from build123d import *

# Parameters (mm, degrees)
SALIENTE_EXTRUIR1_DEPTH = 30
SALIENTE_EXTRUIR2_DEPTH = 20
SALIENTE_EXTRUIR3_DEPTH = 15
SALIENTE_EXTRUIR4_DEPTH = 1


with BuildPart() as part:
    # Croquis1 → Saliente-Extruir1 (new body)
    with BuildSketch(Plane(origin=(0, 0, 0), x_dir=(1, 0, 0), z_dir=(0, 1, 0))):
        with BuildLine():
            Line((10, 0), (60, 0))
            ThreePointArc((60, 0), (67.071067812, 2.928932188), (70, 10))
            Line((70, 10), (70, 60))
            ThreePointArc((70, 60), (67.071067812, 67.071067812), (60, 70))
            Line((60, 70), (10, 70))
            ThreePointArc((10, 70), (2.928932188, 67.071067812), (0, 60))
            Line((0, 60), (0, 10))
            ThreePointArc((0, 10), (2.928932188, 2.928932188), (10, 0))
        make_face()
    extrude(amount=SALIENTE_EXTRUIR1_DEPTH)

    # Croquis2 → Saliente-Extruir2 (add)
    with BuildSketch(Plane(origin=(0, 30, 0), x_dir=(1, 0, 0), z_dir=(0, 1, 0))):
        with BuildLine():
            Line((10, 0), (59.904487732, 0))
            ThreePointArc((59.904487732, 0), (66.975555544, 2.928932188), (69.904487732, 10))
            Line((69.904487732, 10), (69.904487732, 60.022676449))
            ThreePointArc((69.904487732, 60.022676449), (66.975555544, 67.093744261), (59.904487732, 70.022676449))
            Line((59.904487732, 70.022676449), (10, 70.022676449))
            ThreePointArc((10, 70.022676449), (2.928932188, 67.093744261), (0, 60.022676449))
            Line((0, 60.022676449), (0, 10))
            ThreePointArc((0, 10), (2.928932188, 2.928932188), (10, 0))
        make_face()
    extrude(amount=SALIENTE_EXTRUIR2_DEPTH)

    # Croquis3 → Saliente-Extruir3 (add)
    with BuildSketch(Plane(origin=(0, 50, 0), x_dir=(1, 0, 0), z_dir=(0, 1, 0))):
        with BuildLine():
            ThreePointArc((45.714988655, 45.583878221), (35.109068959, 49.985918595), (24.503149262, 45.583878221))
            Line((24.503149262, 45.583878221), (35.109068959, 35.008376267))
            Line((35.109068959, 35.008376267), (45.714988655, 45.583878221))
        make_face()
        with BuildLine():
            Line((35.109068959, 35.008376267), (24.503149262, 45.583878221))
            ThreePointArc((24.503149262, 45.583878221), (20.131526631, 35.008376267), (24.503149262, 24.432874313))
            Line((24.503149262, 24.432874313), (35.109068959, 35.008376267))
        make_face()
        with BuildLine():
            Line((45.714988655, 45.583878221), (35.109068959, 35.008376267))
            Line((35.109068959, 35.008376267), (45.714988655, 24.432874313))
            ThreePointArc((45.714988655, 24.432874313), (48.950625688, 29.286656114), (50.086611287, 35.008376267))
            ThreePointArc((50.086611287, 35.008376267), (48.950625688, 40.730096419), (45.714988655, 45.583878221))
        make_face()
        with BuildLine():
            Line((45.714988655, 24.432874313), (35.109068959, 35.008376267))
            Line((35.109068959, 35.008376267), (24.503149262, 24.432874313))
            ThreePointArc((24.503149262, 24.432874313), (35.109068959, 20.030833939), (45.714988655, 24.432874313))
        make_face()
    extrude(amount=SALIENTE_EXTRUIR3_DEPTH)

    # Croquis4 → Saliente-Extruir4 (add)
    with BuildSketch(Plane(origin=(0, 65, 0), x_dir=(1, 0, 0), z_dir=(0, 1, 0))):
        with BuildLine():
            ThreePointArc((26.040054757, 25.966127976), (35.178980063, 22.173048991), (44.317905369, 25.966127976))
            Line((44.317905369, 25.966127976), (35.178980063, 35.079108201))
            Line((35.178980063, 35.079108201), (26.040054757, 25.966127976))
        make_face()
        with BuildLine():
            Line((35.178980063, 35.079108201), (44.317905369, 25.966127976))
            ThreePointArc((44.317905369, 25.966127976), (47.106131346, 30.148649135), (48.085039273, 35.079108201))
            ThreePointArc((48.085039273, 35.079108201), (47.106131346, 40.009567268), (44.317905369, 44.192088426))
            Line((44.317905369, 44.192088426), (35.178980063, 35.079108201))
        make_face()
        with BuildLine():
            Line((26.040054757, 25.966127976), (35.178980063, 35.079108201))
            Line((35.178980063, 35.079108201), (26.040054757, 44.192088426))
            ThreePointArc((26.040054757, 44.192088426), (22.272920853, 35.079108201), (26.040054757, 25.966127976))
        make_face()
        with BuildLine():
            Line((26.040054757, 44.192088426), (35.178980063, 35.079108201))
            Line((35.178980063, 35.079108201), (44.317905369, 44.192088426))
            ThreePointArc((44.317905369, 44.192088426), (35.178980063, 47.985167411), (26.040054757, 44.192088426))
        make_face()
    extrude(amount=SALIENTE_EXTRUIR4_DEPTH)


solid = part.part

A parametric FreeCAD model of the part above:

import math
import FreeCAD as App
import Part
import Sketcher
Q = App.Units.Quantity

doc = App.newDocument("Part")
params = doc.addObject("Spreadsheet::Sheet", "Params")
for row, (alias, value) in enumerate([
    ("sketch1_radius", "10 mm"),
    ("sketch1_width", "50 mm"),
    ("pad1_length", "30 mm"),
    ("sketch2_radius", "10 mm"),
    ("pad2_length", "20 mm"),
    ("pad3_length", "15 mm"),
    ("pad4_length", "1 mm"),
], start=1):
    params.set(f"A{row}", alias)
    params.set(f"B{row}", "=" + value)
    params.setAlias(f"B{row}", alias)

body = doc.addObject("PartDesign::Body", "Body")

# Sketch on XZ plane
sketch1 = body.newObject("Sketcher::SketchObject", "Sketch")
sketch1.AttachmentSupport = (doc.getObject("XZ_Plane"), [""])
sketch1.MapMode = "FlatFace"
sketch1.addGeometry([
    Part.LineSegment(App.Vector(10, 0, 0), App.Vector(60, 0, 0)),  # 0
    Part.ArcOfCircle(Part.Circle(App.Vector(60, -10, 0), App.Vector(0, 0, 1), 10), math.radians(0), math.radians(90)),  # 1
    Part.LineSegment(App.Vector(70, -10, 0), App.Vector(70, -60, 0)),  # 2
    Part.ArcOfCircle(Part.Circle(App.Vector(60, -60, 0), App.Vector(0, 0, 1), 10), math.radians(-90), math.radians(0)),  # 3
    Part.LineSegment(App.Vector(60, -70, 0), App.Vector(10, -70, 0)),  # 4
    Part.ArcOfCircle(Part.Circle(App.Vector(10, -60, 0), App.Vector(0, 0, 1), 10), math.radians(180), math.radians(270)),  # 5
    Part.LineSegment(App.Vector(0, -60, 0), App.Vector(0, -10, 0)),  # 6
    Part.ArcOfCircle(Part.Circle(App.Vector(10, -10, 0), App.Vector(0, 0, 1), 10), math.radians(90), math.radians(180)),  # 7
], False)
sketch1.addConstraint([
    Sketcher.Constraint("Tangent", 0, 2, 1, 2),
    Sketcher.Constraint("Tangent", 1, 1, 2, 1),
    Sketcher.Constraint("Tangent", 2, 2, 3, 2),
    Sketcher.Constraint("Tangent", 3, 1, 4, 1),
    Sketcher.Constraint("Tangent", 4, 2, 5, 2),
    Sketcher.Constraint("Tangent", 5, 1, 6, 1),
    Sketcher.Constraint("Tangent", 6, 2, 7, 2),
    Sketcher.Constraint("Tangent", 7, 1, 0, 1),
    Sketcher.Constraint("Horizontal", 0),
    Sketcher.Constraint("Vertical", 2),
    Sketcher.Constraint("Horizontal", 4),
    Sketcher.Constraint("Vertical", 6),
    Sketcher.Constraint("Equal", 1, 3),
    Sketcher.Constraint("Equal", 3, 5),
    Sketcher.Constraint("Equal", 5, 7),
    Sketcher.Constraint("PointOnObject", 0, 2, -1),
    Sketcher.Constraint("PointOnObject", 5, 1, -2),
    Sketcher.Constraint("Equal", 4, 2),
    Sketcher.Constraint("Radius", 1, Q("10 mm")),
    Sketcher.Constraint("DistanceX", 0, 1, 0, 2, Q("50 mm")),
])
sketch1.setExpression("Constraints[18]", "Params.sketch1_radius")
sketch1.setExpression("Constraints[19]", "Params.sketch1_width")
pad1 = body.newObject("PartDesign::Pad", "Pad")
pad1.Profile = sketch1
pad1.setExpression("Length", "Params.pad1_length")
pad1.Reversed = True

# Sketch on XZ plane
sketch2 = body.newObject("Sketcher::SketchObject", "Sketch001")
sketch2.AttachmentSupport = (doc.getObject("XZ_Plane"), [""])
sketch2.MapMode = "FlatFace"
sketch2.AttachmentOffset = App.Placement(App.Vector(0, 0, -30), App.Rotation())
sketch2.addGeometry([
    Part.LineSegment(App.Vector(10, 0, 0), App.Vector(60, 0, 0)),  # 0
    Part.ArcOfCircle(Part.Circle(App.Vector(60, -10, 0), App.Vector(0, 0, 1), 10), math.radians(0), math.radians(90)),  # 1
    Part.LineSegment(App.Vector(70, -10, 0), App.Vector(70, -60, 0)),  # 2
    Part.ArcOfCircle(Part.Circle(App.Vector(60, -60, 0), App.Vector(0, 0, 1), 10), math.radians(-90), math.radians(0)),  # 3
    Part.LineSegment(App.Vector(60, -70, 0), App.Vector(10, -70, 0)),  # 4
    Part.ArcOfCircle(Part.Circle(App.Vector(10, -60, 0), App.Vector(0, 0, 1), 10), math.radians(180), math.radians(270)),  # 5
    Part.LineSegment(App.Vector(0, -60, 0), App.Vector(0, -10, 0)),  # 6
    Part.ArcOfCircle(Part.Circle(App.Vector(10, -10, 0), App.Vector(0, 0, 1), 10), math.radians(90), math.radians(180)),  # 7
], False)
sketch2.addConstraint([
    Sketcher.Constraint("Tangent", 0, 2, 1, 2),
    Sketcher.Constraint("Tangent", 1, 1, 2, 1),
    Sketcher.Constraint("Tangent", 2, 2, 3, 2),
    Sketcher.Constraint("Tangent", 3, 1, 4, 1),
    Sketcher.Constraint("Tangent", 4, 2, 5, 2),
    Sketcher.Constraint("Tangent", 5, 1, 6, 1),
    Sketcher.Constraint("Tangent", 6, 2, 7, 2),
    Sketcher.Constraint("Tangent", 7, 1, 0, 1),
    Sketcher.Constraint("Horizontal", 0),
    Sketcher.Constraint("Vertical", 2),
    Sketcher.Constraint("Horizontal", 4),
    Sketcher.Constraint("Vertical", 6),
    Sketcher.Constraint("Equal", 1, 3),
    Sketcher.Constraint("Equal", 3, 5),
    Sketcher.Constraint("Equal", 5, 7),
    Sketcher.Constraint("PointOnObject", 0, 2, -1),
    Sketcher.Constraint("PointOnObject", 5, 1, -2),
    Sketcher.Constraint("Radius", 1, Q("10 mm")),
    Sketcher.Constraint("DistanceX", 0, 1, 0, 2, Q("49.904488 mm")),
    Sketcher.Constraint("DistanceY", 2, 2, 2, 1, Q("50.022676 mm")),
])
sketch2.setExpression("Constraints[17]", "Params.sketch2_radius")
pad2 = body.newObject("PartDesign::Pad", "Pad001")
pad2.Profile = sketch2
pad2.setExpression("Length", "Params.pad2_length")
pad2.Reversed = True

# Sketch on XZ plane
sketch3 = body.newObject("Sketcher::SketchObject", "Sketch002")
sketch3.AttachmentSupport = (doc.getObject("XZ_Plane"), [""])
sketch3.MapMode = "FlatFace"
sketch3.AttachmentOffset = App.Placement(App.Vector(0, 0, -50), App.Rotation())
sketch3.addGeometry([
    Part.ArcOfCircle(Part.Circle(App.Vector(35, -35, 0), App.Vector(0, 0, 1), 15), math.radians(45), math.radians(135)),  # 0
    Part.ArcOfCircle(Part.Circle(App.Vector(35, -35, 0), App.Vector(0, 0, 1), 15), math.radians(0), math.radians(45)),  # 1
    Part.ArcOfCircle(Part.Circle(App.Vector(35, -35, 0), App.Vector(0, 0, 1), 15), math.radians(-45), math.radians(0)),  # 2
    Part.ArcOfCircle(Part.Circle(App.Vector(35, -35, 0), App.Vector(0, 0, 1), 15), math.radians(-135), math.radians(-45)),  # 3
    Part.ArcOfCircle(Part.Circle(App.Vector(35, -35, 0), App.Vector(0, 0, 1), 15), math.radians(135), math.radians(225)),  # 4
], False)
sketch3.addConstraint([
    Sketcher.Constraint("Tangent", 0, 1, 1, 2),
    Sketcher.Constraint("Tangent", 1, 1, 2, 2),
    Sketcher.Constraint("Tangent", 2, 1, 3, 2),
    Sketcher.Constraint("Tangent", 3, 1, 4, 2),
    Sketcher.Constraint("Tangent", 4, 1, 0, 2),
    Sketcher.Constraint("Coincident", 2, 3, 0, 3),
    Sketcher.Constraint("Horizontal", 4, 3, 1, 1),
    Sketcher.Constraint("Horizontal", 2, 1, 3, 1),
    Sketcher.Constraint("Horizontal", 0, 1, 4, 1),
    Sketcher.Constraint("Vertical", 0, 1, 2, 1),
    Sketcher.Constraint("Radius", 0, Q("14.977542 mm")),
    Sketcher.Constraint("DistanceY", 1, 3, 0, 1, Q("10.575502 mm")),
    Sketcher.Constraint("DistanceX", -1, 1, 0, 3, Q("35.109069 mm")),
    Sketcher.Constraint("DistanceY", 2, 1, -1, 1, Q("45.583878 mm")),
])
pad3 = body.newObject("PartDesign::Pad", "Pad002")
pad3.Profile = sketch3
pad3.setExpression("Length", "Params.pad3_length")
pad3.Reversed = True

# Sketch on XZ plane
sketch4 = body.newObject("Sketcher::SketchObject", "Sketch003")
sketch4.AttachmentSupport = (doc.getObject("XZ_Plane"), [""])
sketch4.MapMode = "FlatFace"
sketch4.AttachmentOffset = App.Placement(App.Vector(0, 0, -65), App.Rotation())
sketch4.addGeometry([
    Part.ArcOfCircle(Part.Circle(App.Vector(35, -35, 0), App.Vector(0, 0, 1), 13), math.radians(-45), math.radians(0)),  # 0
    Part.ArcOfCircle(Part.Circle(App.Vector(35, -35, 0), App.Vector(0, 0, 1), 13), math.radians(-135), math.radians(-45)),  # 1
    Part.ArcOfCircle(Part.Circle(App.Vector(35, -35, 0), App.Vector(0, 0, 1), 13), math.radians(135), math.radians(225)),  # 2
    Part.ArcOfCircle(Part.Circle(App.Vector(35, -35, 0), App.Vector(0, 0, 1), 13), math.radians(45), math.radians(135)),  # 3
    Part.ArcOfCircle(Part.Circle(App.Vector(35, -35, 0), App.Vector(0, 0, 1), 13), math.radians(0), math.radians(45)),  # 4
], False)
sketch4.addConstraint([
    Sketcher.Constraint("Tangent", 0, 1, 1, 2),
    Sketcher.Constraint("Tangent", 1, 1, 2, 2),
    Sketcher.Constraint("Tangent", 2, 1, 3, 2),
    Sketcher.Constraint("Tangent", 3, 1, 4, 2),
    Sketcher.Constraint("Tangent", 4, 1, 0, 2),
    Sketcher.Constraint("Coincident", 2, 3, 0, 3),
    Sketcher.Constraint("Horizontal", 0, 1, 1, 1),
    Sketcher.Constraint("Horizontal", 2, 1, 3, 1),
    Sketcher.Constraint("Horizontal", 3, 3, 4, 1),
    Sketcher.Constraint("Vertical", 1, 1, 2, 1),
    Sketcher.Constraint("Radius", 0, Q("12.906059 mm")),
    Sketcher.Constraint("DistanceX", -1, 1, 0, 3, Q("35.17898 mm")),
    Sketcher.Constraint("DistanceY", 0, 3, -1, 1, Q("35.079108 mm")),
    Sketcher.Constraint("DistanceY", 0, 1, -1, 1, Q("44.192088 mm")),
])
pad4 = body.newObject("PartDesign::Pad", "Pad003")
pad4.Profile = sketch4
pad4.setExpression("Length", "Params.pad4_length")
pad4.Reversed = True

doc.recompute()
